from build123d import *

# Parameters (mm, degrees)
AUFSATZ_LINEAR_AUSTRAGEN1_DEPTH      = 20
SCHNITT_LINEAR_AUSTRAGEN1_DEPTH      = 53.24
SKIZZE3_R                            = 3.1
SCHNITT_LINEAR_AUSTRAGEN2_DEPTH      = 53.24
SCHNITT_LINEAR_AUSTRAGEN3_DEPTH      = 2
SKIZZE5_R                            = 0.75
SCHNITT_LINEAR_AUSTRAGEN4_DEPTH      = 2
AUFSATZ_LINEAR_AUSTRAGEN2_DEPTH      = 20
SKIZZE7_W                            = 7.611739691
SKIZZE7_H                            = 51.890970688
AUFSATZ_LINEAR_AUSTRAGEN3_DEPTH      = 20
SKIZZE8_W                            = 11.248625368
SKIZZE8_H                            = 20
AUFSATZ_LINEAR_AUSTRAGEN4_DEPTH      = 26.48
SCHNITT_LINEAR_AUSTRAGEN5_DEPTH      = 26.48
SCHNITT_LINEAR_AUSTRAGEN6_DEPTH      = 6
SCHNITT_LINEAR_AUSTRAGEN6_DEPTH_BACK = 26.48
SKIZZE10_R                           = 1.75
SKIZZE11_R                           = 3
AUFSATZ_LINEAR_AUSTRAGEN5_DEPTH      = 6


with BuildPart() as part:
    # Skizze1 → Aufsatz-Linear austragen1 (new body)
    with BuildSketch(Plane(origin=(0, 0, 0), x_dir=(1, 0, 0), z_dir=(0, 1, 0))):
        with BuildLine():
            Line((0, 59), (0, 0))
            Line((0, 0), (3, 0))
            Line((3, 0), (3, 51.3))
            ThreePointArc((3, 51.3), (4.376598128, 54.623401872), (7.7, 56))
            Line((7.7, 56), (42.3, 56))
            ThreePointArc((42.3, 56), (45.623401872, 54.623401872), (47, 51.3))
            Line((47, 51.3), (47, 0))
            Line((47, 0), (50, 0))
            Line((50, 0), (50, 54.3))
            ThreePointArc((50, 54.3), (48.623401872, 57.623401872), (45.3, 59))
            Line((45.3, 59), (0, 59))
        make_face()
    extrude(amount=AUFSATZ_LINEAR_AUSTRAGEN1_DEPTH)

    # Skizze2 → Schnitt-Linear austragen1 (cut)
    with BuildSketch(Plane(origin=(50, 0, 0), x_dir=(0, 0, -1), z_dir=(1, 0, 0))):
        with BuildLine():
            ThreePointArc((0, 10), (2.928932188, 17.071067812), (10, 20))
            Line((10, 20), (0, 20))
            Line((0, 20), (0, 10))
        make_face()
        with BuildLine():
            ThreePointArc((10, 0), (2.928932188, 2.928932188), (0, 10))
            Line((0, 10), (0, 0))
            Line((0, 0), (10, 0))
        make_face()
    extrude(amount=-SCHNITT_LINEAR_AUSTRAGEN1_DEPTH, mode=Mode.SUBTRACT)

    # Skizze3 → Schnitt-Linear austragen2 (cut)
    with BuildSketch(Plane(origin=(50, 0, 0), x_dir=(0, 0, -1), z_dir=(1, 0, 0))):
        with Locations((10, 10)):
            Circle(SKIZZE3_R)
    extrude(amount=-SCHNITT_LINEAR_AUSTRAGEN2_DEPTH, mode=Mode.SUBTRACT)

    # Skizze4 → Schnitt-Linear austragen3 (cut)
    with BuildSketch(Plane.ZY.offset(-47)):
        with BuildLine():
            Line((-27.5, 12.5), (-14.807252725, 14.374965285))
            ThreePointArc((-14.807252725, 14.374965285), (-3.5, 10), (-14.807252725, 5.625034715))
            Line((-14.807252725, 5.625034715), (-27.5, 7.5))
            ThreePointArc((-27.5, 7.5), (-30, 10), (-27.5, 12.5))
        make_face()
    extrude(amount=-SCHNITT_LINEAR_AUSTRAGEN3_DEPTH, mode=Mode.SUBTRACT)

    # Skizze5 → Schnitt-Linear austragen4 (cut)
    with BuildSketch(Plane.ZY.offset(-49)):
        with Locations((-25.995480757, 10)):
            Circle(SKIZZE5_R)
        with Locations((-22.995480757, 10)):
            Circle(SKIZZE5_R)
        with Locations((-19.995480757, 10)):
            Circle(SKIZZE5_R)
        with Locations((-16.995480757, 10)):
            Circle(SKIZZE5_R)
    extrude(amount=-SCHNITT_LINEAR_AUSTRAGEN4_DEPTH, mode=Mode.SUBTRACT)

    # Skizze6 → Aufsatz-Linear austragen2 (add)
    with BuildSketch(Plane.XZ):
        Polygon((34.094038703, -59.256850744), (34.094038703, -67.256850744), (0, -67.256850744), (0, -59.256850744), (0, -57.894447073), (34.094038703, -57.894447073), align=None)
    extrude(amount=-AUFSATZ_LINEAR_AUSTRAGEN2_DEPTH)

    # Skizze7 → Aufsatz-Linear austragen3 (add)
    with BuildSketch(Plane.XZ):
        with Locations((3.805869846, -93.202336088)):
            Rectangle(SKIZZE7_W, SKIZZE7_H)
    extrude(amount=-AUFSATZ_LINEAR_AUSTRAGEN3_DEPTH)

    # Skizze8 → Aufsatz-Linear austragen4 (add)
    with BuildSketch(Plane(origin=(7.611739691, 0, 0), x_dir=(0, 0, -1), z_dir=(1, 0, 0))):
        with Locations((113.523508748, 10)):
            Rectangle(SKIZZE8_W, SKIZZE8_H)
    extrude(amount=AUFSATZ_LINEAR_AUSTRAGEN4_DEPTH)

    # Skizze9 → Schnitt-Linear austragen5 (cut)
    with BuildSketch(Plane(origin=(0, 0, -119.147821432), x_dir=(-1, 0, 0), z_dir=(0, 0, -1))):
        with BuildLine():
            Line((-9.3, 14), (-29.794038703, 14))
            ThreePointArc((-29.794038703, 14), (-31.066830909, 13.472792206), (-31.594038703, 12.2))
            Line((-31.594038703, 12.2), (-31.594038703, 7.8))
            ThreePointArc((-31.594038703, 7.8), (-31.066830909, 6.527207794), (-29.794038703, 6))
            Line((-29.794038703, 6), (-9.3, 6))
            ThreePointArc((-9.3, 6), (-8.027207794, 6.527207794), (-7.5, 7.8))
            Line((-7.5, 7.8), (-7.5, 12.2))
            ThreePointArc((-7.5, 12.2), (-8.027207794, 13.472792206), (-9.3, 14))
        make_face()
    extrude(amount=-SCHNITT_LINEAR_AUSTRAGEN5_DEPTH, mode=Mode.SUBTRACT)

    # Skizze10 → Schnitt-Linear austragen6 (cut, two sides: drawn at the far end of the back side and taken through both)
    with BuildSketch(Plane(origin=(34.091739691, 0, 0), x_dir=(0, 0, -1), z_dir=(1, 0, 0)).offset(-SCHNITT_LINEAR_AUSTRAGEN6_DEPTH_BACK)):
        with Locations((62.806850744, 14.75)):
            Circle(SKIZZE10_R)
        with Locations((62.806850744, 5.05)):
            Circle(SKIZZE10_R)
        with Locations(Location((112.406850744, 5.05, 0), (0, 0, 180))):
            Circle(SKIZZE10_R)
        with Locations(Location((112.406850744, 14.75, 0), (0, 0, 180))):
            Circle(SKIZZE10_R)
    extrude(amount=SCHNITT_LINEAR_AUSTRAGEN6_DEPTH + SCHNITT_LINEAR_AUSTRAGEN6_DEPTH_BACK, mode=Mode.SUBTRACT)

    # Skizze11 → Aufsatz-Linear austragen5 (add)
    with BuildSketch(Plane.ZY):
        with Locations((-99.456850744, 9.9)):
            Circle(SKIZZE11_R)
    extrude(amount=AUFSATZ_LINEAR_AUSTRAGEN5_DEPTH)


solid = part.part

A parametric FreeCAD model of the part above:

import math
import FreeCAD as App
import Part
import Sketcher

V = App.Vector


def add_polygon(sketch, points):
    """Adds a closed chain of lines whose ends are joined by coincident constraints."""
    first, n = sketch.GeometryCount, len(points)
    for a, b in zip(points, points[1:] + points[:1]):
        sketch.addGeometry(Part.LineSegment(App.Vector(*a, 0), App.Vector(*b, 0)), False)
    for i in range(n):
        sketch.addConstraint(Sketcher.Constraint("Coincident", first + i, 2, first + (i + 1) % n, 1))

doc = App.newDocument("Part")
body = doc.addObject("PartDesign::Body", "Body")

sketch1 = body.newObject("Sketcher::SketchObject", "Sketch")
sketch1.AttachmentSupport = (doc.getObject("XZ_Plane"), [""])
sketch1.MapMode = "FlatFace"
sketch1.addGeometry([
    Part.LineSegment(V(0, -59, 0), V(0, 0, 0)),
    Part.LineSegment(V(0, 0, 0), V(3, 0, 0)),
    Part.LineSegment(V(3, 0, 0), V(3, -51.3, 0)),
    Part.ArcOfCircle(Part.Circle(V(7.7, -51.3, 0), V(0, 0, 1), 4.7), math.radians(180), math.radians(270)),
    Part.LineSegment(V(7.7, -56, 0), V(42.3, -56, 0)),
    Part.ArcOfCircle(Part.Circle(V(42.3, -51.3, 0), V(0, 0, 1), 4.7), math.radians(-90), math.radians(0)),
    Part.LineSegment(V(47, -51.3, 0), V(47, 0, 0)),
    Part.LineSegment(V(47, 0, 0), V(50, 0, 0)),
    Part.LineSegment(V(50, 0, 0), V(50, -54.3, 0)),
    Part.ArcOfCircle(Part.Circle(V(45.3, -54.3, 0), V(0, 0, 1), 4.7), math.radians(-90), math.radians(0)),
    Part.LineSegment(V(45.3, -59, 0), V(0, -59, 0)),
], False)
sketch1.addConstraint([
    Sketcher.Constraint("Coincident", 0, 2, 1, 1),
    Sketcher.Constraint("Coincident", 1, 2, 2, 1),
    Sketcher.Constraint("Tangent", 2, 2, 3, 1),
    Sketcher.Constraint("Tangent", 3, 2, 4, 1),
    Sketcher.Constraint("Tangent", 4, 2, 5, 1),
    Sketcher.Constraint("Tangent", 5, 2, 6, 1),
    Sketcher.Constraint("Coincident", 6, 2, 7, 1),
    Sketcher.Constraint("Coincident", 7, 2, 8, 1),
    Sketcher.Constraint("Tangent", 8, 2, 9, 2),
    Sketcher.Constraint("Tangent", 9, 1, 10, 1),
    Sketcher.Constraint("Coincident", 10, 2, 0, 1),
    Sketcher.Constraint("Vertical", 0),
    Sketcher.Constraint("Horizontal", 1),
    Sketcher.Constraint("Vertical", 2),
    Sketcher.Constraint("Horizontal", 4),
    Sketcher.Constraint("Vertical", 6),
    Sketcher.Constraint("Horizontal", 7),
    Sketcher.Constraint("Vertical", 8),
    Sketcher.Constraint("Horizontal", 10),
    Sketcher.Constraint("Coincident", 0, 2, -1, 1),
    Sketcher.Constraint("Equal", 3, 5),
    Sketcher.Constraint("Equal", 5, 9),
    Sketcher.Constraint("PointOnObject", 6, 2, -1),
    Sketcher.Constraint("Equal", 1, 7),
    Sketcher.Constraint("Radius", 3, 4.7),
    Sketcher.Constraint("DistanceX", 1, 1, 1, 2, 3.0),
    Sketcher.Constraint("DistanceY", 0, 1, 0, 2, 59.0),
    Sketcher.Constraint("DistanceX", 4, 1, 4, 2, 34.6),
    Sketcher.Constraint("DistanceY", 2, 2, 2, 1, 51.3),
])
pad1 = body.newObject("PartDesign::Pad", "Pad")
pad1.Profile = sketch1
pad1.Length = 20
pad1.Reversed = True

sketch2 = body.newObject("Sketcher::SketchObject", "Sketch001")
sketch2.AttachmentSupport = (doc.getObject("YZ_Plane"), [""])
sketch2.MapMode = "FlatFace"
sketch2.AttachmentOffset = App.Placement(V(0, 0, 50), App.Rotation())
sketch2.addGeometry([
    Part.ArcOfCircle(Part.Circle(V(10, -10, 0), V(0, 0, 1), 10), math.radians(0), math.radians(90)),
    Part.LineSegment(V(20, -10, 0), V(20, 0, 0)),
    Part.LineSegment(V(20, 0, 0), V(10, 0, 0)),
    Part.ArcOfCircle(Part.Circle(V(10, -10, 0), V(0, 0, 1), 10), math.radians(90), math.radians(180)),
    Part.LineSegment(V(10, 0, 0), V(0, 0, 0)),
    Part.LineSegment(V(0, 0, 0), V(0, -10, 0)),
], False)
sketch2.addConstraint([
    Sketcher.Constraint("Tangent", 0, 1, 1, 1),
    Sketcher.Constraint("Coincident", 1, 2, 2, 1),
    Sketcher.Constraint("Tangent", 2, 2, 0, 2),
    Sketcher.Constraint("Tangent", 3, 1, 4, 1),
    Sketcher.Constraint("Coincident", 4, 2, 5, 1),
    Sketcher.Constraint("Tangent", 5, 2, 3, 2),
    Sketcher.Constraint("Vertical", 1),
    Sketcher.Constraint("Horizontal", 2),
    Sketcher.Constraint("Horizontal", 4),
    Sketcher.Constraint("Vertical", 5),
    Sketcher.Constraint("Coincident", 4, 2, -1, 1),
    Sketcher.Constraint("Coincident", 3, 3, 0, 3),
    Sketcher.Constraint("Equal", 0, 3),
    Sketcher.Constraint("Radius", 0, 10.0),
])
pocket1 = body.newObject("PartDesign::Pocket", "Pocket")
pocket1.Profile = sketch2
pocket1.Length = 53.24

sketch3 = body.newObject("Sketcher::SketchObject", "Sketch002")
sketch3.AttachmentSupport = (doc.getObject("YZ_Plane"), [""])
sketch3.MapMode = "FlatFace"
sketch3.AttachmentOffset = App.Placement(V(0, 0, 50), App.Rotation())
sketch3.addGeometry(Part.Circle(V(10, -10, 0), V(0, 0, 1), 3.1), False)
sketch3.addConstraint([
    Sketcher.Constraint("Diameter", 0, 6.2),
    Sketcher.Constraint("DistanceX", -1, 1, 0, 3, 10.0),
    Sketcher.Constraint("DistanceY", 0, 3, -1, 1, 10.0),
])
pocket2 = body.newObject("PartDesign::Pocket", "Pocket001")
pocket2.Profile = sketch3
pocket2.Length = 53.24

sketch4 = body.newObject("Sketcher::SketchObject", "Sketch003")
sketch4.AttachmentSupport = (doc.getObject("YZ_Plane"), [""])
sketch4.MapMode = "FlatFace"
sketch4.AttachmentOffset = App.Placement(V(0, 0, 47), App.Rotation())
sketch4.addGeometry([
    Part.LineSegment(V(14.4, -14.8, 0), V(12.5, -27.5, 0)),
    Part.ArcOfCircle(Part.Circle(V(10, -27.5, 0), V(0, 0, 1), 2.5), math.radians(180), math.radians(360)),
    Part.LineSegment(V(7.5, -27.5, 0), V(5.6, -14.8, 0)),
    Part.ArcOfCircle(Part.Circle(V(10, -10, 0), V(0, 0, 1), 6.5), math.radians(-48), math.radians(228)),
], False)
sketch4.addConstraint([
    Sketcher.Constraint("Coincident", 0, 2, 1, 2),
    Sketcher.Constraint("Coincident", 1, 1, 2, 1),
    Sketcher.Constraint("Coincident", 2, 2, 3, 2),
    Sketcher.Constraint("Coincident", 3, 1, 0, 1),
    Sketcher.Constraint("Horizontal", 1, 3, 0, 2),
    Sketcher.Constraint("Horizontal", 0, 2, 1, 1),
    Sketcher.Constraint("Horizontal", 2, 2, 3, 1),
    Sketcher.Constraint("Vertical", 1, 3, 3, 3),
    Sketcher.Constraint("Radius", 1, 2.5),
    Sketcher.Constraint("Radius", 3, 6.5),
    Sketcher.Constraint("DistanceX", -1, 1, 1, 3, 10.0),
    Sketcher.Constraint("DistanceY", 3, 3, -1, 1, 10.0),
    Sketcher.Constraint("DistanceY", 1, 3, -1, 1, 27.5),
    Sketcher.Constraint("DistanceX", 2, 2, 3, 1, 8.749931),
])
pocket3 = body.newObject("PartDesign::Pocket", "Pocket002")
pocket3.Profile = sketch4
pocket3.Length = 2
pocket3.Reversed = True

sketch5 = body.newObject("Sketcher::SketchObject", "Sketch004")
sketch5.AttachmentSupport = (doc.getObject("YZ_Plane"), [""])
sketch5.MapMode = "FlatFace"
sketch5.AttachmentOffset = App.Placement(V(0, 0, 49), App.Rotation())
sketch5.addGeometry([
    Part.Circle(V(10, -26, 0), V(0, 0, 1), 0.8),
    Part.Circle(V(10, -23, 0), V(0, 0, 1), 0.8),
    Part.Circle(V(10, -20, 0), V(0, 0, 1), 0.8),
    Part.Circle(V(10, -17, 0), V(0, 0, 1), 0.8),
], False)
sketch5.addConstraint([
    Sketcher.Constraint("Equal", 0, 1),
    Sketcher.Constraint("Equal", 1, 2),
    Sketcher.Constraint("Equal", 2, 3),
    Sketcher.Constraint("Vertical", 0, 3, 1, 3),
    Sketcher.Constraint("Vertical", 1, 3, 2, 3),
    Sketcher.Constraint("Vertical", 2, 3, 3, 3),
    Sketcher.Constraint("Diameter", 0, 1.5),
    Sketcher.Constraint("DistanceX", -1, 1, 0, 3, 10.0),
    Sketcher.Constraint("DistanceY", 0, 3, 1, 3, 3.0),
    Sketcher.Constraint("DistanceY", 1, 3, 2, 3, 3.0),
    Sketcher.Constraint("DistanceY", 2, 3, 3, 3, 3.0),
    Sketcher.Constraint("DistanceY", 0, 3, -1, 1, 25.995481),
])
pocket4 = body.newObject("PartDesign::Pocket", "Pocket003")
pocket4.Profile = sketch5
pocket4.Length = 2
pocket4.Reversed = True

sketch6 = body.newObject("Sketcher::SketchObject", "Sketch005")
sketch6.AttachmentSupport = (doc.getObject("XZ_Plane"), [""])
sketch6.MapMode = "FlatFace"
add_polygon(sketch6, [(34, -67), (34, -58), (0, -58), (0, -67)])
sketch6.addConstraint([
    Sketcher.Constraint("Vertical", 0),
    Sketcher.Constraint("Horizontal", 1),
    Sketcher.Constraint("Vertical", 2),
    Sketcher.Constraint("Horizontal", 3),
    Sketcher.Constraint("PointOnObject", 1, 2, -2),
    Sketcher.Constraint("DistanceX", 1, 2, 1, 1, 34.094039),
    Sketcher.Constraint("DistanceY", 0, 1, 0, 2, 9.362404),
    Sketcher.Constraint("DistanceY", 2, 2, -1, 1, 67.256851),
])
pad2 = body.newObject("PartDesign::Pad", "Pad001")
pad2.Profile = sketch6
pad2.Length = 20
pad2.Reversed = True

sketch7 = body.newObject("Sketcher::SketchObject", "Sketch006")
sketch7.AttachmentSupport = (doc.getObject("XZ_Plane"), [""])
sketch7.MapMode = "FlatFace"
add_polygon(sketch7, [(0, -67), (0, -119), (8, -119), (8, -67)])
sketch7.addConstraint([
    Sketcher.Constraint("Vertical", 0),
    Sketcher.Constraint("Horizontal", 1),
    Sketcher.Constraint("Vertical", 2),
    Sketcher.Constraint("Horizontal", 3),
    Sketcher.Constraint("PointOnObject", 0, 2, -2),
    Sketcher.Constraint("DistanceX", 1, 1, 1, 2, 7.61174),
    Sketcher.Constraint("DistanceY", 0, 2, 0, 1, 51.890971),
    Sketcher.Constraint("DistanceY", 0, 2, -1, 1, 119.147821),
])
pad3 = body.newObject("PartDesign::Pad", "Pad002")
pad3.Profile = sketch7
pad3.Length = 20
pad3.Reversed = True

sketch8 = body.newObject("Sketcher::SketchObject", "Sketch007")
sketch8.AttachmentSupport = (doc.getObject("YZ_Plane"), [""])
sketch8.MapMode = "FlatFace"
sketch8.AttachmentOffset = App.Placement(V(0, 0, 7.61174), App.Rotation())
add_polygon(sketch8, [(20, -108), (0, -108), (0, -119), (20, -119)])
sketch8.addConstraint([
    Sketcher.Constraint("Horizontal", 0),
    Sketcher.Constraint("Vertical", 1),
    Sketcher.Constraint("Horizontal", 2),
    Sketcher.Constraint("Vertical", 3),
    Sketcher.Constraint("PointOnObject", 0, 2, -2),
    Sketcher.Constraint("DistanceX", 0, 2, 0, 1, 20.0),
    Sketcher.Constraint("DistanceY", 1, 2, 1, 1, 11.248625),
    Sketcher.Constraint("DistanceY", 1, 2, -1, 1, 119.147821),
])
pad4 = body.newObject("PartDesign::Pad", "Pad003")
pad4.Profile = sketch8
pad4.Length = 26.48

sketch9 = body.newObject("Sketcher::SketchObject", "Sketch008")
sketch9.AttachmentSupport = (doc.getObject("XY_Plane"), [""])
sketch9.MapMode = "FlatFace"
sketch9.AttachmentOffset = App.Placement(V(0, 0, -119.147821), App.Rotation())
sketch9.addGeometry([
    Part.LineSegment(V(9.3, 14, 0), V(29.8, 14, 0)),
    Part.ArcOfCircle(Part.Circle(V(29.8, 12.2, 0), V(0, 0, 1), 1.8), math.radians(0), math.radians(90)),
    Part.LineSegment(V(31.6, 12.2, 0), V(31.6, 7.8, 0)),
    Part.ArcOfCircle(Part.Circle(V(29.8, 7.8, 0), V(0, 0, 1), 1.8), math.radians(-90), math.radians(0)),
    Part.LineSegment(V(29.8, 6, 0), V(9.3, 6, 0)),
    Part.ArcOfCircle(Part.Circle(V(9.3, 7.8, 0), V(0, 0, 1), 1.8), math.radians(180), math.radians(270)),
    Part.LineSegment(V(7.5, 7.8, 0), V(7.5, 12.2, 0)),
    Part.ArcOfCircle(Part.Circle(V(9.3, 12.2, 0), V(0, 0, 1), 1.8), math.radians(90), math.radians(180)),
], False)
sketch9.addConstraint([
    Sketcher.Constraint("Tangent", 0, 2, 1, 2),
    Sketcher.Constraint("Tangent", 1, 1, 2, 1),
    Sketcher.Constraint("Tangent", 2, 2, 3, 2),
    Sketcher.Constraint("Tangent", 3, 1, 4, 1),
    Sketcher.Constraint("Tangent", 4, 2, 5, 2),
    Sketcher.Constraint("Tangent", 5, 1, 6, 1),
    Sketcher.Constraint("Tangent", 6, 2, 7, 2),
    Sketcher.Constraint("Tangent", 7, 1, 0, 1),
    Sketcher.Constraint("Horizontal", 0),
    Sketcher.Constraint("Vertical", 2),
    Sketcher.Constraint("Horizontal", 4),
    Sketcher.Constraint("Vertical", 6),
    Sketcher.Constraint("Equal", 1, 3),
    Sketcher.Constraint("Equal", 3, 5),
    Sketcher.Constraint("Equal", 5, 7),
    Sketcher.Constraint("Radius", 1, 1.8),
    Sketcher.Constraint("DistanceY", 2, 2, 2, 1, 4.4),
    Sketcher.Constraint("DistanceY", -1, 1, 0, 2, 14.0),
    Sketcher.Constraint("DistanceX", -1, 1, 5, 3, 9.3),
    Sketcher.Constraint("DistanceX", 0, 1, 0, 2, 20.494039),
])
pocket5 = body.newObject("PartDesign::Pocket", "Pocket004")
pocket5.Profile = sketch9
pocket5.Length = 26.48
pocket5.Reversed = True

sketch10 = body.newObject("Sketcher::SketchObject", "Sketch009")
sketch10.AttachmentSupport = (doc.getObject("YZ_Plane"), [""])
sketch10.MapMode = "FlatFace"
sketch10.AttachmentOffset = App.Placement(V(0, 0, 34.09174), App.Rotation())
sketch10.addGeometry([
    Part.Circle(V(14.8, -62.8, 0), V(0, 0, 1), 1.8),
    Part.Circle(V(5, -62.8, 0), V(0, 0, 1), 1.8),
    Part.Circle(V(5, -112.4, 0), V(0, 0, 1), 1.8),
    Part.Circle(V(14.8, -112.4, 0), V(0, 0, 1), 1.8),
], False)
sketch10.addConstraint([
    Sketcher.Constraint("Equal", 0, 1),
    Sketcher.Constraint("Equal", 1, 2),
    Sketcher.Constraint("Equal", 2, 3),
    Sketcher.Constraint("Horizontal", 0, 3, 1, 3),
    Sketcher.Constraint("Horizontal", 2, 3, 3, 3),
    Sketcher.Constraint("Vertical", 1, 3, 2, 3),
    Sketcher.Constraint("Vertical", 0, 3, 3, 3),
    Sketcher.Constraint("Diameter", 0, 3.5),
    Sketcher.Constraint("DistanceX", 1, 3, 0, 3, 9.7),
    Sketcher.Constraint("DistanceY", 2, 3, 1, 3, 49.6),
    Sketcher.Constraint("DistanceX", -1, 1, 0, 3, 14.75),
    Sketcher.Constraint("DistanceY", 0, 3, -1, 1, 62.806851),
])
pocket6 = body.newObject("PartDesign::Pocket", "Pocket005")
pocket6.Profile = sketch10
pocket6.Type = "TwoLengths"
pocket6.Length = 6
pocket6.Length2 = 26.48
pocket6.Reversed = True

sketch11 = body.newObject("Sketcher::SketchObject", "Sketch010")
sketch11.AttachmentSupport = (doc.getObject("YZ_Plane"), [""])
sketch11.MapMode = "FlatFace"
sketch11.addGeometry(Part.Circle(V(9.9, -99.5, 0), V(0, 0, 1), 3), False)
sketch11.addConstraint([
    Sketcher.Constraint("Diameter", 0, 6.0),
    Sketcher.Constraint("DistanceX", -1, 1, 0, 3, 9.9),
    Sketcher.Constraint("DistanceY", 0, 3, -1, 1, 99.456851),
])
pad5 = body.newObject("PartDesign::Pad", "Pad004")
pad5.Profile = sketch11
pad5.Length = 6
pad5.Reversed = True

doc.recompute()
